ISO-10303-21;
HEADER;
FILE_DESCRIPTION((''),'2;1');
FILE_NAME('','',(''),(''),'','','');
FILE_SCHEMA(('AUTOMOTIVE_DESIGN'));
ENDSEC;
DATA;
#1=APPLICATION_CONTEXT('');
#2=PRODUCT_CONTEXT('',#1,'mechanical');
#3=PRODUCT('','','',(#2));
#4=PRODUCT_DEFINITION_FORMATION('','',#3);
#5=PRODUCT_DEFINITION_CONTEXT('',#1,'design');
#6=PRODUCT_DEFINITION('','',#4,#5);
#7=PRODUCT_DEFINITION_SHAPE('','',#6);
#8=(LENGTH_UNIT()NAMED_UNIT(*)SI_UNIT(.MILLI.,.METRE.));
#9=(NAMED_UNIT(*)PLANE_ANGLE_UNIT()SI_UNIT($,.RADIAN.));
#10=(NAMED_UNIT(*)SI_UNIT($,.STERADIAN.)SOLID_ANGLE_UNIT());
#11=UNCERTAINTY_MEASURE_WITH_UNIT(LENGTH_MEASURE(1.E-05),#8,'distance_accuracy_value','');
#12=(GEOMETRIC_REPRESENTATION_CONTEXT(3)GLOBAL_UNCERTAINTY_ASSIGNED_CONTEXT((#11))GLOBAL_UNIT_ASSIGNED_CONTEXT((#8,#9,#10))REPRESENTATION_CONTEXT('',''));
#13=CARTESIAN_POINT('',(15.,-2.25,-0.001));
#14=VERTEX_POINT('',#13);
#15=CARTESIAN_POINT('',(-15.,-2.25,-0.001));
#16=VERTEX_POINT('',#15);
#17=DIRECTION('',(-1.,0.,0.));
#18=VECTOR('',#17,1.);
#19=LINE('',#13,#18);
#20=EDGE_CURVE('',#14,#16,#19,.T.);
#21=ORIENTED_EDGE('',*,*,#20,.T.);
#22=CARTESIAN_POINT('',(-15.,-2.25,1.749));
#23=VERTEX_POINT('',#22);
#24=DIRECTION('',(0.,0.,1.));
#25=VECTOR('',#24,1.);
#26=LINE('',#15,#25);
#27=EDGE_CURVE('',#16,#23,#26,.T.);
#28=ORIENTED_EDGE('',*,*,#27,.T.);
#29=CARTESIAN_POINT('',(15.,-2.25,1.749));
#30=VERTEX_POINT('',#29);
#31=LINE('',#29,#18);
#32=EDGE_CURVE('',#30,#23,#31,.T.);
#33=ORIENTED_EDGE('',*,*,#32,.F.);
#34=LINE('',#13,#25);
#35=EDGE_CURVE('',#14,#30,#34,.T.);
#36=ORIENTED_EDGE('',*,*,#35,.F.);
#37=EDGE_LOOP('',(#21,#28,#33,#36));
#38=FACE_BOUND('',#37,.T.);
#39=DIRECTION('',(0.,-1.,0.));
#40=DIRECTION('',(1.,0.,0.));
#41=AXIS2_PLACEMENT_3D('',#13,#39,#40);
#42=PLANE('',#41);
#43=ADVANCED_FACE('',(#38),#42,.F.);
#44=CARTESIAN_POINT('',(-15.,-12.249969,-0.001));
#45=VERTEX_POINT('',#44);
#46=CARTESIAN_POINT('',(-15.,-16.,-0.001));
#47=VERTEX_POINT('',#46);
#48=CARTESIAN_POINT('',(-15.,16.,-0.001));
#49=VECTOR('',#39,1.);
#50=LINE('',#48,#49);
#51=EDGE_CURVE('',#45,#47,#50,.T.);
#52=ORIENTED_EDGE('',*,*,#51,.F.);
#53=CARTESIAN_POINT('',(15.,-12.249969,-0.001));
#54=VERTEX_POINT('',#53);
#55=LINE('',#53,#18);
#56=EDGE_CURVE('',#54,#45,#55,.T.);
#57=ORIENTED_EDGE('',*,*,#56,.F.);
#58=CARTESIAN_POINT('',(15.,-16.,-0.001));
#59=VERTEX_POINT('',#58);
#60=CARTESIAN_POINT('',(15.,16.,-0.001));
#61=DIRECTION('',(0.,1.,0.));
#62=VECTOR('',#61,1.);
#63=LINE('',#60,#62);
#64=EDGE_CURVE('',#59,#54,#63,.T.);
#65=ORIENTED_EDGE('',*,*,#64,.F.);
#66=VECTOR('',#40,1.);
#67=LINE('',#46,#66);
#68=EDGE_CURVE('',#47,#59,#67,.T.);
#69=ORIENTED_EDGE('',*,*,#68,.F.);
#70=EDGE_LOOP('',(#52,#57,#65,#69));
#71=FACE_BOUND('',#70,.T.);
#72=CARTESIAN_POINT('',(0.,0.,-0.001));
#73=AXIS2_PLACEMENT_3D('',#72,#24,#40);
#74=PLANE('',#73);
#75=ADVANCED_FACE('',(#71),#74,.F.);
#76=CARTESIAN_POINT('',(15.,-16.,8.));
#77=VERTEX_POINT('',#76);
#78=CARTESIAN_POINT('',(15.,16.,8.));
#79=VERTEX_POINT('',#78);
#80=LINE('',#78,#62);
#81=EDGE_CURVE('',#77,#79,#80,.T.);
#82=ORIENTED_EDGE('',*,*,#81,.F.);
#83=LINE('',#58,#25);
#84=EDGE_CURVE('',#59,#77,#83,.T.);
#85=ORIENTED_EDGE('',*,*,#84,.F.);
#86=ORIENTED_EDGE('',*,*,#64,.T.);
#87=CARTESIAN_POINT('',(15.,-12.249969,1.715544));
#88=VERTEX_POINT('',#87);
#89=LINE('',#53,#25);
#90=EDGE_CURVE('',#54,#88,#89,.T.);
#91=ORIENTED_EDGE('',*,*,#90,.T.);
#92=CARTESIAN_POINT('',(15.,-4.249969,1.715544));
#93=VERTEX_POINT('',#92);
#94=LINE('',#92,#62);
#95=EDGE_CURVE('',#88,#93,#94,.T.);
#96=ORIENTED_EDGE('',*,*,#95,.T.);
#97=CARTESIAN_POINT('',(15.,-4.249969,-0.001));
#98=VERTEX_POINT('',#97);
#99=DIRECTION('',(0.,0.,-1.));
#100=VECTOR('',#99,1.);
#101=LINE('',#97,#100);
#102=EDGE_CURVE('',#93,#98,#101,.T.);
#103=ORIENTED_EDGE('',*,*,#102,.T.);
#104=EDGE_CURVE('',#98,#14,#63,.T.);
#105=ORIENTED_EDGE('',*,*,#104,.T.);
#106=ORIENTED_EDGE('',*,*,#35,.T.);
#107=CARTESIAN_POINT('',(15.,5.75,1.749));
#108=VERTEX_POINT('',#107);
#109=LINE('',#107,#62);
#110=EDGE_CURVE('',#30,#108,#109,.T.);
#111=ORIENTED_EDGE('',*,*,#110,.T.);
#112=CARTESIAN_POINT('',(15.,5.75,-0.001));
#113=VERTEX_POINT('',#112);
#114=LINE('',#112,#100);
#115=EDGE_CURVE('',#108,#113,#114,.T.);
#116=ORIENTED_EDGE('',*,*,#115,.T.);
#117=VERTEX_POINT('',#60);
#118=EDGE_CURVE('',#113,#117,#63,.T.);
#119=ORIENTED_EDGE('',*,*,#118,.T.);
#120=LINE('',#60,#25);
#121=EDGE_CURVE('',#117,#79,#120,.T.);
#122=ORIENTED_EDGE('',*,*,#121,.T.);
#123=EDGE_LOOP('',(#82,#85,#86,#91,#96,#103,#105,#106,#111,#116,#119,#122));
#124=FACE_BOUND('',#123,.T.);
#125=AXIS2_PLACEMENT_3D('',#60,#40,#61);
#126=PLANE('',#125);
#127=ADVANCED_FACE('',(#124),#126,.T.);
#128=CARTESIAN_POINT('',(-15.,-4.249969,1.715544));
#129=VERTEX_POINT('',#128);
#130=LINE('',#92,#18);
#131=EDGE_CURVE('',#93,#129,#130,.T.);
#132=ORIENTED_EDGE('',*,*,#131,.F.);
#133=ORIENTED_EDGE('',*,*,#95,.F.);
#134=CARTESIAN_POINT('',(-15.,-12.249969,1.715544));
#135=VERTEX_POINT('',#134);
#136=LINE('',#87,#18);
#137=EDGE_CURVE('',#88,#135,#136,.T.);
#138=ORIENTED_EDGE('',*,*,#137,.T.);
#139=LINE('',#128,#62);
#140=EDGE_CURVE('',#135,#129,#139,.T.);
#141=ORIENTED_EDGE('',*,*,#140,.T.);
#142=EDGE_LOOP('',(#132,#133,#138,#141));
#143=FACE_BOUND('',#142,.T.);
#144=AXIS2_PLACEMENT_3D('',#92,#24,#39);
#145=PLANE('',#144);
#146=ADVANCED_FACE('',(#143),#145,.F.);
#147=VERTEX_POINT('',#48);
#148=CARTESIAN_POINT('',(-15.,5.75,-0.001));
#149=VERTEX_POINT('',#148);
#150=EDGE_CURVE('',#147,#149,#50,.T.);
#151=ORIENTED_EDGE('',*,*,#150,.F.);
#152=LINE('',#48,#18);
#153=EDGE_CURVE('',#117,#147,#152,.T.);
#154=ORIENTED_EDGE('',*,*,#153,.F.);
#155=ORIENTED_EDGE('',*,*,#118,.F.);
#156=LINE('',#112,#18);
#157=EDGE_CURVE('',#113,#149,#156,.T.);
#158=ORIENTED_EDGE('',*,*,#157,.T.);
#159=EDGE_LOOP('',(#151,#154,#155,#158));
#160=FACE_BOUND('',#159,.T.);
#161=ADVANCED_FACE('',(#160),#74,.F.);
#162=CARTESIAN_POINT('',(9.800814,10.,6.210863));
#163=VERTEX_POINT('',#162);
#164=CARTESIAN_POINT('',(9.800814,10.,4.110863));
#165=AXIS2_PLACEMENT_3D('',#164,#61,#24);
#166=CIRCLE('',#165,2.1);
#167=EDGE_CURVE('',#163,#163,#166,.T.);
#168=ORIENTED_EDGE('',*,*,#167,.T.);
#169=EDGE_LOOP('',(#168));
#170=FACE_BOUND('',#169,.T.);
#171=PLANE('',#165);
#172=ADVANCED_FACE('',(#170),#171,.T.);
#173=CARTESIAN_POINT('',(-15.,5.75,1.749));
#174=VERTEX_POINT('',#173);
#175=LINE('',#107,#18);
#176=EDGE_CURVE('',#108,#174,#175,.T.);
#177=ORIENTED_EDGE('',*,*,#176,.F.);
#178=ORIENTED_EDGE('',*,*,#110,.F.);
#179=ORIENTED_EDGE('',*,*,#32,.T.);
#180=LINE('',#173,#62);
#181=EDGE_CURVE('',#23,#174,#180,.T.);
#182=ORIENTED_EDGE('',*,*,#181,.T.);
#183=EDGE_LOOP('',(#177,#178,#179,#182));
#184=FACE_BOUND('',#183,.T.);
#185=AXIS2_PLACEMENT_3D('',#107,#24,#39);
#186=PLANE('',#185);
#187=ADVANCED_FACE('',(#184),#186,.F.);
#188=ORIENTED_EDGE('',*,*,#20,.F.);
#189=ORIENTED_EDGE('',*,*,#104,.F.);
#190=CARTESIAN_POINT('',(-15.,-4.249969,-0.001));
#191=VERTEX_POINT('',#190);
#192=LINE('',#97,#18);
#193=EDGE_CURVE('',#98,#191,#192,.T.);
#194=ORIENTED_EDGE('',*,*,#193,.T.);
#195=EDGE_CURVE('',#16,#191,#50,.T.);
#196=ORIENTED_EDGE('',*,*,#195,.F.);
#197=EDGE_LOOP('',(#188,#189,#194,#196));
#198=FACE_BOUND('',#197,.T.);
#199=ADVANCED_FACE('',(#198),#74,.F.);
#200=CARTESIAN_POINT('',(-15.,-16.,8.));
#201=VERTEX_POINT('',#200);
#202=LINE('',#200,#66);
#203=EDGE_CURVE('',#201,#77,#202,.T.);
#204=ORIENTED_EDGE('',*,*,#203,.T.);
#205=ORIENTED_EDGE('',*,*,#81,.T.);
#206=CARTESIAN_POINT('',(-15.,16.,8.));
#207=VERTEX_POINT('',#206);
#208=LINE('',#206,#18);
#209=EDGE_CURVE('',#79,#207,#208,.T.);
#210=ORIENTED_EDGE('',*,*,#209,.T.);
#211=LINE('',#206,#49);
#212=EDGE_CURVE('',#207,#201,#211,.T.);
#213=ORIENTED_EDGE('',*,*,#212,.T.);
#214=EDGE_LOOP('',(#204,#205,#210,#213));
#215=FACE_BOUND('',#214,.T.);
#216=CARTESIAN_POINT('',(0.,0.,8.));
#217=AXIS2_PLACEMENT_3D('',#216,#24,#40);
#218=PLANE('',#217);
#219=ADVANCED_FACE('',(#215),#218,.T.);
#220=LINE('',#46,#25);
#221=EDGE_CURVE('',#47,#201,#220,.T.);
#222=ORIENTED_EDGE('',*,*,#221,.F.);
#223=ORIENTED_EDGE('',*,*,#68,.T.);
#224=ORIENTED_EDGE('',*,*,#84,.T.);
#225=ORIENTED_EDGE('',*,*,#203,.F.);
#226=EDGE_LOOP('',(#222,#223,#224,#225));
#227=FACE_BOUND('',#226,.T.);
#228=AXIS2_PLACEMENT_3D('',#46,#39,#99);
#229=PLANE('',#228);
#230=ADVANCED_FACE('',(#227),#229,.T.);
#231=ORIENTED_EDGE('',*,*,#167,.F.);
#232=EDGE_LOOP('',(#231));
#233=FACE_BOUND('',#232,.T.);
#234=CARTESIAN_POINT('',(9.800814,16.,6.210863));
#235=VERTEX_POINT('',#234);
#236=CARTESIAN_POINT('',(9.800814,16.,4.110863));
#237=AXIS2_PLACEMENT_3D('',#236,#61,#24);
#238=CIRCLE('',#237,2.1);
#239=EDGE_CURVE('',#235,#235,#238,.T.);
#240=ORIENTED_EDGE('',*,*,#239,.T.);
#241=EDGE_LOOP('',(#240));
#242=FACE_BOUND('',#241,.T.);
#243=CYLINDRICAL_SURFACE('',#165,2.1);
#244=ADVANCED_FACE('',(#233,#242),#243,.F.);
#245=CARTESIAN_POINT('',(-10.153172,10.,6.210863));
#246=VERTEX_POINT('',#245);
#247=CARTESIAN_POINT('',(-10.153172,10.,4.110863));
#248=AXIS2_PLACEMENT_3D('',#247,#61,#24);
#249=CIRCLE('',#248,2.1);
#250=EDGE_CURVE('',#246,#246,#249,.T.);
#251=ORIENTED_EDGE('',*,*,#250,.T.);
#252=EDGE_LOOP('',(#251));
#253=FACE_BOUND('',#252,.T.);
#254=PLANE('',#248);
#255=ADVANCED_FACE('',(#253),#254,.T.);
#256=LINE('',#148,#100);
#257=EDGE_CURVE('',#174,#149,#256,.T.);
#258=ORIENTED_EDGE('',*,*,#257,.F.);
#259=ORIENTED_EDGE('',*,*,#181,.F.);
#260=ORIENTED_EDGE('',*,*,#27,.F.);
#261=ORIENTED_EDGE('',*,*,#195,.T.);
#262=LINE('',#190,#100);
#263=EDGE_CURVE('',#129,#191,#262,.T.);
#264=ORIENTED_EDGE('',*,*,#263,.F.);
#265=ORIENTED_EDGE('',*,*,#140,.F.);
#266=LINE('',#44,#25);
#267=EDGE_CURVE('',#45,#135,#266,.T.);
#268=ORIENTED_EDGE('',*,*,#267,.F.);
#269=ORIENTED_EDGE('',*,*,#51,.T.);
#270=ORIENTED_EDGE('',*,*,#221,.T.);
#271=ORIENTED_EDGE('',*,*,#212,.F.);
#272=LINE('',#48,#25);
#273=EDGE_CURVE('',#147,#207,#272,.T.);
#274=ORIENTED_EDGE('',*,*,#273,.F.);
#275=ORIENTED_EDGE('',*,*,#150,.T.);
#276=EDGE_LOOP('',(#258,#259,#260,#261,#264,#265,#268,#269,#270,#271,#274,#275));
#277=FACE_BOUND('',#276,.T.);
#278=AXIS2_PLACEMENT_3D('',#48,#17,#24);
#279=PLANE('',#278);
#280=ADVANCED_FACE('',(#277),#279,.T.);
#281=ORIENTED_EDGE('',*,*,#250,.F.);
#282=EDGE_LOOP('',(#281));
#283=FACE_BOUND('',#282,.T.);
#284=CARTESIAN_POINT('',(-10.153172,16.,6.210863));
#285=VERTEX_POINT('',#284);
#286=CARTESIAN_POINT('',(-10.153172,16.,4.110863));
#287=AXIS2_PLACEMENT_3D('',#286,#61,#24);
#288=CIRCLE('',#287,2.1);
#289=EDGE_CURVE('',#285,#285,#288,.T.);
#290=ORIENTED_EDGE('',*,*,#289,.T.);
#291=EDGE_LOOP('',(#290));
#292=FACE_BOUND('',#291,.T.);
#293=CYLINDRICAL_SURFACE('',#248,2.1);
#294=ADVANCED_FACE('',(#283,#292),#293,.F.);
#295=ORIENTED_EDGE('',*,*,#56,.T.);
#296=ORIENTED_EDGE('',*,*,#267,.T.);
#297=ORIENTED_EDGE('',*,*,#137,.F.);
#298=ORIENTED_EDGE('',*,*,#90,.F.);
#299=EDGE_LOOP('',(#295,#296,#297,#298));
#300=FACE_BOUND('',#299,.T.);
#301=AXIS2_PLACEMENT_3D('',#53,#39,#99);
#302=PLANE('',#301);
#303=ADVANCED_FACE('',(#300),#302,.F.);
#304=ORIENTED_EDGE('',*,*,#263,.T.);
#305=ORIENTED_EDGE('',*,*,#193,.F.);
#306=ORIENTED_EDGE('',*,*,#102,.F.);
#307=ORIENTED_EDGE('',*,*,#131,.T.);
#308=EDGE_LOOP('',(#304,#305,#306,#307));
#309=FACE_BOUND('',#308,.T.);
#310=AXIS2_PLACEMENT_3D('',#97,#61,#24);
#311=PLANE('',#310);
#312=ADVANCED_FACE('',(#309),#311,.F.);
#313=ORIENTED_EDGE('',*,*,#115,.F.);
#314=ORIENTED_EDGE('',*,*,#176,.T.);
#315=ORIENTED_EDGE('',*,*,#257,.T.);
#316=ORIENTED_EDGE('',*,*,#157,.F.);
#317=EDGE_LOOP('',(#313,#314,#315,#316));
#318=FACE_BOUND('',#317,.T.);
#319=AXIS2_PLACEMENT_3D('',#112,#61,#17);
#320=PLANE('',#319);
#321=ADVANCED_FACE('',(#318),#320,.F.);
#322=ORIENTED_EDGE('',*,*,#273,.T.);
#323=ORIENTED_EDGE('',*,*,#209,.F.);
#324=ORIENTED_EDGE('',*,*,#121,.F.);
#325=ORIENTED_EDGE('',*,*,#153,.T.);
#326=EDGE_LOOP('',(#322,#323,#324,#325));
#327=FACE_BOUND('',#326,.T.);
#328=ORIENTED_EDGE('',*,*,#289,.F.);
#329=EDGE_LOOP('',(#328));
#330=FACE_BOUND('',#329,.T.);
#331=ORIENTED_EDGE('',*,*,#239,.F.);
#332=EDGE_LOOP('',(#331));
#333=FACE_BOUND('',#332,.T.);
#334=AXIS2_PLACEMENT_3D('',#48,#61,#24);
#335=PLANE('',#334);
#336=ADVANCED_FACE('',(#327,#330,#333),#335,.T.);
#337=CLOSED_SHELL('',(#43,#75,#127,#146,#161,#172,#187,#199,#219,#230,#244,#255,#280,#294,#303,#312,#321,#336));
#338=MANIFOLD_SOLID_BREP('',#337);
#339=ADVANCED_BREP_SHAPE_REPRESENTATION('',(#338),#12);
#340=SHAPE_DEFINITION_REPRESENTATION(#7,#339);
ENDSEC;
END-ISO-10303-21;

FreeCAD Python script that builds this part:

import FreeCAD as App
import Part
import Sketcher
Q = App.Units.Quantity


def add_polygon(sketch, points):
    """Adds a closed chain of lines whose ends are joined by coincident constraints."""
    first, n = sketch.GeometryCount, len(points)
    for a, b in zip(points, points[1:] + points[:1]):
        sketch.addGeometry(Part.LineSegment(App.Vector(*a, 0), App.Vector(*b, 0)), False)
    for i in range(n):
        sketch.addConstraint(Sketcher.Constraint("Coincident", first + i, 2, first + (i + 1) % n, 1))

doc = App.newDocument("Part")
body = doc.addObject("PartDesign::Body", "Body")

# Sketch on XY plane
sketch1 = body.newObject("Sketcher::SketchObject", "Sketch")
sketch1.AttachmentSupport = (doc.getObject("XY_Plane"), [""])
sketch1.MapMode = "FlatFace"
add_polygon(sketch1, [(-15, 16), (-15, -16), (15, -16), (15, 16)])  # lines 0-3
sketch1.addConstraint([
    Sketcher.Constraint("Vertical", 0),
    Sketcher.Constraint("Horizontal", 1),
    Sketcher.Constraint("Vertical", 2),
    Sketcher.Constraint("Horizontal", 3),
    Sketcher.Constraint("Symmetric", 0, 2, 2, 2, -1, 1),
    Sketcher.Constraint("DistanceX", 1, 1, 1, 2, Q("30 mm")),
    Sketcher.Constraint("DistanceY", 0, 2, 0, 1, Q("32 mm")),
])
pad1 = body.newObject("PartDesign::Pad", "Pad")
pad1.Profile = sketch1
pad1.Type = "TwoLengths"
pad1.Length = 8
pad1.Length2 = 0.001

# Sketch on YZ plane
sketch2 = body.newObject("Sketcher::SketchObject", "Sketch001")
sketch2.AttachmentSupport = (doc.getObject("YZ_Plane"), [""])
sketch2.MapMode = "FlatFace"
sketch2.AttachmentOffset = App.Placement(App.Vector(0, 0, -15), App.Rotation())
add_polygon(sketch2, [(5.75, -0.001), (-2.25, -0.001), (-2.25, 1.749), (5.75, 1.749)])  # lines 0-3
add_polygon(sketch2, [(-4.249969, -0.001), (-12.249969, -0.001), (-12.249969, 1.715544), (-4.249969, 1.715544)])  # lines 4-7
sketch2.addConstraint([
    Sketcher.Constraint("Horizontal", 0),
    Sketcher.Constraint("Vertical", 1),
    Sketcher.Constraint("Horizontal", 2),
    Sketcher.Constraint("Vertical", 3),
    Sketcher.Constraint("Horizontal", 4),
    Sketcher.Constraint("Vertical", 5),
    Sketcher.Constraint("Horizontal", 6),
    Sketcher.Constraint("Vertical", 7),
    Sketcher.Constraint("Horizontal", 3, 2, 4, 2),
    Sketcher.Constraint("Equal", 2, 4),
    Sketcher.Constraint("DistanceX", 0, 2, 0, 1, Q("8 mm")),
    Sketcher.Constraint("DistanceY", 1, 1, 1, 2, Q("1.75 mm")),
    Sketcher.Constraint("DistanceX", 0, 2, -1, 1, Q("2.25 mm")),
    Sketcher.Constraint("DistanceY", 0, 2, -1, 1, Q("0.001 mm")),
    Sketcher.Constraint("DistanceY", 5, 1, 5, 2, Q("1.716544 mm")),
    Sketcher.Constraint("DistanceX", 4, 2, -1, 1, Q("12.249969 mm")),
])
pocket1 = body.newObject("PartDesign::Pocket", "Pocket")
pocket1.Profile = sketch2
pocket1.Type = "ThroughAll"
pocket1.Reversed = True

# Sketch on XZ plane
sketch3 = body.newObject("Sketcher::SketchObject", "Sketch002")
sketch3.AttachmentSupport = (doc.getObject("XZ_Plane"), [""])
sketch3.MapMode = "FlatFace"
sketch3.AttachmentOffset = App.Placement(App.Vector(0, 0, -16), App.Rotation())
sketch3.addGeometry([
    Part.Circle(App.Vector(-10.153172, 4.110863, 0), App.Vector(0, 0, 1), 2.1),
    Part.Circle(App.Vector(9.800814, 4.110863, 0), App.Vector(0, 0, 1), 2.1),
], False)
sketch3.addConstraint([
    Sketcher.Constraint("Equal", 0, 1),
    Sketcher.Constraint("Horizontal", 0, 3, 1, 3),
    Sketcher.Constraint("Diameter", 0, Q("4.2 mm")),
    Sketcher.Constraint("DistanceX", 0, 3, -1, 1, Q("10.153172 mm")),
    Sketcher.Constraint("DistanceY", -1, 1, 0, 3, Q("4.110863 mm")),
    Sketcher.Constraint("DistanceX", -1, 1, 1, 3, Q("9.800814 mm")),
])
pocket2 = body.newObject("PartDesign::Pocket", "Pocket001")
pocket2.Profile = sketch3
pocket2.Length = 6
pocket2.Reversed = True

doc.recompute()
